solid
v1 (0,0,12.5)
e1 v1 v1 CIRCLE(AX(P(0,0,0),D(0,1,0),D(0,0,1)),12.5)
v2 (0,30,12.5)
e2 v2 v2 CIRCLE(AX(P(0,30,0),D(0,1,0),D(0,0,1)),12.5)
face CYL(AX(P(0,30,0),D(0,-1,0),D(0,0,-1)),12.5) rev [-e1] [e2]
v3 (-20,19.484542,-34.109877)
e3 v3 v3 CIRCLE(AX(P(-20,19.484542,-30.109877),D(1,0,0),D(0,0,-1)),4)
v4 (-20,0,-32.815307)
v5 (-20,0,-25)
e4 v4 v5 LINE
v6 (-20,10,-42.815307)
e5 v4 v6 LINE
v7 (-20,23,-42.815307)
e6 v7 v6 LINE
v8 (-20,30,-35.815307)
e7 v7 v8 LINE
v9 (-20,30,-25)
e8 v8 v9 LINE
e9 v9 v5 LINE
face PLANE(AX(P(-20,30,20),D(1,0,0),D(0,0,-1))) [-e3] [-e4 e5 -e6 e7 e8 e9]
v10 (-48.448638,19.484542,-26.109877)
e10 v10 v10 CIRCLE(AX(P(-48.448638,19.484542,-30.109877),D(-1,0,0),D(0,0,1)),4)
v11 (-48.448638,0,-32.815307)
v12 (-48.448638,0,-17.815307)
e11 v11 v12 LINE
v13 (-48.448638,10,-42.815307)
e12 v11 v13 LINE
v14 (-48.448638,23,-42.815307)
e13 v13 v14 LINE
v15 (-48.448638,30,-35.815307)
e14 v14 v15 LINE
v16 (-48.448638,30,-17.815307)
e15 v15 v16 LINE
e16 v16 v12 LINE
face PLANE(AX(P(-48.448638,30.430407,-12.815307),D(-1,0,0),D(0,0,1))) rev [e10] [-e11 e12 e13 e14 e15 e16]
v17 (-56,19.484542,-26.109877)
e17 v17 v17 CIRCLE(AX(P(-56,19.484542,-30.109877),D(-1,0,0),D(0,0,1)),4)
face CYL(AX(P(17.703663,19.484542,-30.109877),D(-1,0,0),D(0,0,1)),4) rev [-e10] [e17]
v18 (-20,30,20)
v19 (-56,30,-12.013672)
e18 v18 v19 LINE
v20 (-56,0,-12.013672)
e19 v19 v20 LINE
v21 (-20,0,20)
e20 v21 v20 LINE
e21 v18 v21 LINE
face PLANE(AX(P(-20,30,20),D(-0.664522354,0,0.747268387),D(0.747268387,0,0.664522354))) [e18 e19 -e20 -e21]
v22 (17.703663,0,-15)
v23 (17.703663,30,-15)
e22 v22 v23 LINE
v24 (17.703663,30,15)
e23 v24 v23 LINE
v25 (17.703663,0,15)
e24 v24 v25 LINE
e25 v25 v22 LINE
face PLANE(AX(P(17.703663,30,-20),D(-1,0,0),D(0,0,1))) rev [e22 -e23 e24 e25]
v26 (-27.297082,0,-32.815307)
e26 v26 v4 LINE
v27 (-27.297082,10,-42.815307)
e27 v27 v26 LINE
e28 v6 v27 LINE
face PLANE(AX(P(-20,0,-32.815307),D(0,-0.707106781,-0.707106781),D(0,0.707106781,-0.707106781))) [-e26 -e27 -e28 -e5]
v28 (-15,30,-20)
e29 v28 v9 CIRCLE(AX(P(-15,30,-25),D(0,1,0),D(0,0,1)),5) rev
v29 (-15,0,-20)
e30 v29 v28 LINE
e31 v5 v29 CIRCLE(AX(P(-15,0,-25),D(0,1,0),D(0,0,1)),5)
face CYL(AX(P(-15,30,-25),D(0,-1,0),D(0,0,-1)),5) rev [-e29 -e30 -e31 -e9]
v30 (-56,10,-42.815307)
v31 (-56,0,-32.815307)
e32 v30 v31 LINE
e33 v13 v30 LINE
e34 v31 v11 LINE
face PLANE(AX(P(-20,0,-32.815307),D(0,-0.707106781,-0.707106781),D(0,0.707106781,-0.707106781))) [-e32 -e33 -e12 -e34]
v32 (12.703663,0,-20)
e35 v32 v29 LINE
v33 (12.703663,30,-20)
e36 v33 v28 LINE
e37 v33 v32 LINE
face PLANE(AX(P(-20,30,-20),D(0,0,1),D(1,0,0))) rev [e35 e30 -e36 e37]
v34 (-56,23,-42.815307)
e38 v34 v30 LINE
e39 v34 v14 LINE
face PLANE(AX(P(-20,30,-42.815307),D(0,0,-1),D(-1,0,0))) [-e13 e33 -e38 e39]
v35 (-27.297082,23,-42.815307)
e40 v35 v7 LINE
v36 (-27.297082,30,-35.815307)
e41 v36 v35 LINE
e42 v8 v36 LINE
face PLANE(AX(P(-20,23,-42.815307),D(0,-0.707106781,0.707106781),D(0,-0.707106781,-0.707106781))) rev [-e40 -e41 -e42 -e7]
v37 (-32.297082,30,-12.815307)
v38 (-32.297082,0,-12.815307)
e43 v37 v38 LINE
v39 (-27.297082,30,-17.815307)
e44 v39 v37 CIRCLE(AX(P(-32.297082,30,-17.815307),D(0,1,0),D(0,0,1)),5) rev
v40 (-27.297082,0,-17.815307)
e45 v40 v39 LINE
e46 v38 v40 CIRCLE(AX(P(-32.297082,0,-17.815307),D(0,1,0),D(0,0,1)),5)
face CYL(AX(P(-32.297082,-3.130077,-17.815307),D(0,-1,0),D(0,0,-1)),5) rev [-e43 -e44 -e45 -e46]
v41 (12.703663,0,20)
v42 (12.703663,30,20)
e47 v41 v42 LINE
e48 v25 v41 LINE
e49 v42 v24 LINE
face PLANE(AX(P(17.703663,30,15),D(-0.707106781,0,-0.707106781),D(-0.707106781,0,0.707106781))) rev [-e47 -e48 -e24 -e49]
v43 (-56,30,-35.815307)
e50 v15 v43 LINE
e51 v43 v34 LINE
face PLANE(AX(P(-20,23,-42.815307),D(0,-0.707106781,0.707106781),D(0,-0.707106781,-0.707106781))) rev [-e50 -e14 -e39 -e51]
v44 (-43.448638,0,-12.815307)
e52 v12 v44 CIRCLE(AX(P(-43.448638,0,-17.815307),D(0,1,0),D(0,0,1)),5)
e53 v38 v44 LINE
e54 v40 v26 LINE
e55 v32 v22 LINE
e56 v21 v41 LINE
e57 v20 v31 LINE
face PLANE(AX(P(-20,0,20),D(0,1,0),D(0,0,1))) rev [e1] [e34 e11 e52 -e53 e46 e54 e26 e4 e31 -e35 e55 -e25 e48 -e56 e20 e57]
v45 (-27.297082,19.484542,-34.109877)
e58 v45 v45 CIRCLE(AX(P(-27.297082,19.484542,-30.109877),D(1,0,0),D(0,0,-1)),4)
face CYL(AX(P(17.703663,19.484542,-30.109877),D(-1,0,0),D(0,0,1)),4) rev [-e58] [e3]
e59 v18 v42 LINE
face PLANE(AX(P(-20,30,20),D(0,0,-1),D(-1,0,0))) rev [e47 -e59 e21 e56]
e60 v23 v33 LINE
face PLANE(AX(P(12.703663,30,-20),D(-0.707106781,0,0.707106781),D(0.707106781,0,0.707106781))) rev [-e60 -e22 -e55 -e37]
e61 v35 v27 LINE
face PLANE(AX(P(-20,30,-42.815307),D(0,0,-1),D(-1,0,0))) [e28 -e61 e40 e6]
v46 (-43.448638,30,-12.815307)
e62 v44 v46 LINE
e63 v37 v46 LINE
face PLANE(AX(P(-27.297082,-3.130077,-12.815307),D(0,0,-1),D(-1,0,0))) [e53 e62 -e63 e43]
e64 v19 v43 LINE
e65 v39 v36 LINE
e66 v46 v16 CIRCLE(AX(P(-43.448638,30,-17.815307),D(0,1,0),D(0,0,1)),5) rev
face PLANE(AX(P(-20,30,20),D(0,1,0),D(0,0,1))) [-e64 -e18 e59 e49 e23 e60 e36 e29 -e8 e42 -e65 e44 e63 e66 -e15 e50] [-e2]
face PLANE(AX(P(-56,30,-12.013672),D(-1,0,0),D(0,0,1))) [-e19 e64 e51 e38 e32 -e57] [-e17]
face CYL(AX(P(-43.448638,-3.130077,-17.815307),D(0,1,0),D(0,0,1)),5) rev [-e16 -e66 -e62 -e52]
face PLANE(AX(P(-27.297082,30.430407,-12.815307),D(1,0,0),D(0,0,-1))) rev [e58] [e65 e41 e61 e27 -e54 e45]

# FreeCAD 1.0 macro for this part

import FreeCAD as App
import Part
import Sketcher
Q = App.Units.Quantity


def edges_at(feature, points):
    """Names of the edges that pass closest to the given points."""
    edges = feature.Shape.Edges
    near = lambda p: min(range(len(edges)), key=lambda i: edges[i].distToShape(Part.Vertex(*p))[0])
    return sorted({f"Edge{near(p) + 1}" for p in points})

doc = App.newDocument("Part")
body = doc.addObject("PartDesign::Body", "Body")

# Sketch on XZ plane
sketch1 = body.newObject("Sketcher::SketchObject", "Sketch")
sketch1.AttachmentSupport = (doc.getObject("XZ_Plane"), [""])
sketch1.MapMode = "FlatFace"
sketch1.addGeometry(Part.LineSegment(App.Vector(-20, -20, 0), App.Vector(-20, 20, 0)), False)
sketch1.addGeometry(Part.LineSegment(App.Vector(-20, 20, 0), App.Vector(17.703663, 20, 0)), False)
sketch1.addGeometry(Part.LineSegment(App.Vector(17.703663, 20, 0), App.Vector(17.703663, -20, 0)), False)
sketch1.addGeometry(Part.LineSegment(App.Vector(17.703663, -20, 0), App.Vector(-20, -20, 0)), False)
sketch1.addGeometry(Part.Circle(App.Vector(0, 0, 0), App.Vector(0, 0, 1), 12.5), False)
sketch1.addConstraint(Sketcher.Constraint("Coincident", 0, 2, 1, 1))
sketch1.addConstraint(Sketcher.Constraint("Coincident", 1, 2, 2, 1))
sketch1.addConstraint(Sketcher.Constraint("Coincident", 2, 2, 3, 1))
sketch1.addConstraint(Sketcher.Constraint("Coincident", 3, 2, 0, 1))
sketch1.addConstraint(Sketcher.Constraint("Vertical", 0))
sketch1.addConstraint(Sketcher.Constraint("Horizontal", 1))
sketch1.addConstraint(Sketcher.Constraint("Vertical", 2))
sketch1.addConstraint(Sketcher.Constraint("Horizontal", 3))
sketch1.addConstraint(Sketcher.Constraint("Coincident", 4, 3, -1, 1))
sketch1.addConstraint(Sketcher.Constraint("Diameter", 4, Q("25 mm")))
sketch1.addConstraint(Sketcher.Constraint("DistanceY", 0, 1, 0, 2, Q("40 mm")))
sketch1.addConstraint(Sketcher.Constraint("DistanceX", 0, 2, -1, 1, Q("20 mm")))
sketch1.addConstraint(Sketcher.Constraint("DistanceY", -1, 1, 0, 2, Q("20 mm")))
sketch1.addConstraint(Sketcher.Constraint("DistanceX", 1, 1, 1, 2, Q("37.703663 mm")))
pad1 = body.newObject("PartDesign::Pad", "Pad")
pad1.Profile = sketch1
pad1.Length = 30
pad1.Reversed = True

# Sketch on XZ plane
sketch2 = body.newObject("Sketcher::SketchObject", "Sketch001")
sketch2.AttachmentSupport = (doc.getObject("XZ_Plane"), [""])
sketch2.MapMode = "FlatFace"
sketch2.addGeometry(Part.LineSegment(App.Vector(-20, 20, 0), App.Vector(-56, -12.013672, 0)), False)
sketch2.addGeometry(Part.LineSegment(App.Vector(-56, -12.013672, 0), App.Vector(-56, -42.815307, 0)), False)
sketch2.addGeometry(Part.LineSegment(App.Vector(-56, -42.815307, 0), App.Vector(-20, -42.815307, 0)), False)
sketch2.addGeometry(Part.LineSegment(App.Vector(-20, -42.815307, 0), App.Vector(-20, 20, 0)), False)
sketch2.addConstraint(Sketcher.Constraint("Coincident", 0, 2, 1, 1))
sketch2.addConstraint(Sketcher.Constraint("Coincident", 1, 2, 2, 1))
sketch2.addConstraint(Sketcher.Constraint("Coincident", 2, 2, 3, 1))
sketch2.addConstraint(Sketcher.Constraint("Coincident", 3, 2, 0, 1))
sketch2.addConstraint(Sketcher.Constraint("Vertical", 1))
sketch2.addConstraint(Sketcher.Constraint("Horizontal", 2))
sketch2.addConstraint(Sketcher.Constraint("Vertical", 3))
sketch2.addConstraint(Sketcher.Constraint("DistanceX", 2, 1, 2, 2, Q("36 mm")))
sketch2.addConstraint(Sketcher.Constraint("DistanceX", 0, 2, -1, 1, Q("56 mm")))
sketch2.addConstraint(Sketcher.Constraint("DistanceY", -1, 1, 3, 2, Q("20 mm")))
sketch2.addConstraint(Sketcher.Constraint("DistanceY", 1, 2, 1, 1, Q("30.801635 mm")))
sketch2.addConstraint(Sketcher.Constraint("DistanceY", 3, 1, 3, 2, Q("62.815307 mm")))
pad2 = body.newObject("PartDesign::Pad", "Pad001")
pad2.Profile = sketch2
pad2.Length = 30
pad2.Reversed = True

# Sketch on XY plane
sketch3 = body.newObject("Sketcher::SketchObject", "Sketch002")
sketch3.AttachmentSupport = (doc.getObject("XY_Plane"), [""])
sketch3.MapMode = "FlatFace"
sketch3.AttachmentOffset = App.Placement(App.Vector(0, 0, -42.815307), App.Rotation())
sketch3.addGeometry(Part.LineSegment(App.Vector(-27.297082, 30.430407, 0), App.Vector(-27.297082, -3.130077, 0)), False)
sketch3.addGeometry(Part.LineSegment(App.Vector(-27.297082, -3.130077, 0), App.Vector(-48.448638, -3.130077, 0)), False)
sketch3.addGeometry(Part.LineSegment(App.Vector(-48.448638, -3.130077, 0), App.Vector(-48.448638, 30.430407, 0)), False)
sketch3.addGeometry(Part.LineSegment(App.Vector(-48.448638, 30.430407, 0), App.Vector(-27.297082, 30.430407, 0)), False)
sketch3.addConstraint(Sketcher.Constraint("Coincident", 0, 2, 1, 1))
sketch3.addConstraint(Sketcher.Constraint("Coincident", 1, 2, 2, 1))
sketch3.addConstraint(Sketcher.Constraint("Coincident", 2, 2, 3, 1))
sketch3.addConstraint(Sketcher.Constraint("Coincident", 3, 2, 0, 1))
sketch3.addConstraint(Sketcher.Constraint("Vertical", 0))
sketch3.addConstraint(Sketcher.Constraint("Horizontal", 1))
sketch3.addConstraint(Sketcher.Constraint("Vertical", 2))
sketch3.addConstraint(Sketcher.Constraint("Horizontal", 3))
sketch3.addConstraint(Sketcher.Constraint("DistanceX", 1, 2, 1, 1, Q("21.151556 mm")))
sketch3.addConstraint(Sketcher.Constraint("DistanceY", 0, 2, 0, 1, Q("33.560484 mm")))
sketch3.addConstraint(Sketcher.Constraint("DistanceX", 0, 2, -1, 1, Q("27.297082 mm")))
sketch3.addConstraint(Sketcher.Constraint("DistanceY", 0, 2, -1, 1, Q("3.130077 mm")))
pocket1 = body.newObject("PartDesign::Pocket", "Pocket")
pocket1.Profile = sketch3
pocket1.Length = 30
pocket1.Reversed = True
doc.recompute()

fillet = body.newObject("PartDesign::Fillet", "Fillet")
fillet.Base = (pocket1, edges_at(pocket1, [(-27.297, 15, -12.815), (-48.449, 15, -12.815)]))
fillet.Radius = 5
doc.recompute()

chamfer = body.newObject("PartDesign::Chamfer", "Chamfer")
chamfer.Base = (fillet, edges_at(fillet, [(-52.224, 30, -42.815), (-23.649, 30, -42.815)]))
chamfer.Size = 7
doc.recompute()

fillet2 = body.newObject("PartDesign::Fillet", "Fillet001")
fillet2.Base = (chamfer, edges_at(chamfer, [(-20, 15, -20)]))
fillet2.Radius = 5

# Sketch on YZ plane
sketch4 = body.newObject("Sketcher::SketchObject", "Sketch003")
sketch4.AttachmentSupport = (doc.getObject("YZ_Plane"), [""])
sketch4.MapMode = "FlatFace"
sketch4.AttachmentOffset = App.Placement(App.Vector(0, 0, -56), App.Rotation())
sketch4.addGeometry(Part.Circle(App.Vector(19.484542, -30.109877, 0), App.Vector(0, 0, 1), 4), False)
sketch4.addConstraint(Sketcher.Constraint("Diameter", 0, Q("8 mm")))
sketch4.addConstraint(Sketcher.Constraint("DistanceX", -1, 1, 0, 3, Q("19.484542 mm")))
sketch4.addConstraint(Sketcher.Constraint("DistanceY", 0, 3, -1, 1, Q("30.109877 mm")))
pocket2 = body.newObject("PartDesign::Pocket", "Pocket001")
pocket2.Profile = sketch4
pocket2.Type = "ThroughAll"
pocket2.Reversed = True
doc.recompute()

chamfer2 = body.newObject("PartDesign::Chamfer", "Chamfer001")
chamfer2.Base = (pocket2, edges_at(pocket2, [(-23.649, 0, -42.815), (-52.224, 0, -42.815)]))
chamfer2.Size = 10
doc.recompute()

chamfer3 = body.newObject("PartDesign::Chamfer", "Chamfer002")
chamfer3.Base = (chamfer2, edges_at(chamfer2, [(17.704, 15, -20), (17.704, 15, 20)]))
chamfer3.Size = 5

doc.recompute()
